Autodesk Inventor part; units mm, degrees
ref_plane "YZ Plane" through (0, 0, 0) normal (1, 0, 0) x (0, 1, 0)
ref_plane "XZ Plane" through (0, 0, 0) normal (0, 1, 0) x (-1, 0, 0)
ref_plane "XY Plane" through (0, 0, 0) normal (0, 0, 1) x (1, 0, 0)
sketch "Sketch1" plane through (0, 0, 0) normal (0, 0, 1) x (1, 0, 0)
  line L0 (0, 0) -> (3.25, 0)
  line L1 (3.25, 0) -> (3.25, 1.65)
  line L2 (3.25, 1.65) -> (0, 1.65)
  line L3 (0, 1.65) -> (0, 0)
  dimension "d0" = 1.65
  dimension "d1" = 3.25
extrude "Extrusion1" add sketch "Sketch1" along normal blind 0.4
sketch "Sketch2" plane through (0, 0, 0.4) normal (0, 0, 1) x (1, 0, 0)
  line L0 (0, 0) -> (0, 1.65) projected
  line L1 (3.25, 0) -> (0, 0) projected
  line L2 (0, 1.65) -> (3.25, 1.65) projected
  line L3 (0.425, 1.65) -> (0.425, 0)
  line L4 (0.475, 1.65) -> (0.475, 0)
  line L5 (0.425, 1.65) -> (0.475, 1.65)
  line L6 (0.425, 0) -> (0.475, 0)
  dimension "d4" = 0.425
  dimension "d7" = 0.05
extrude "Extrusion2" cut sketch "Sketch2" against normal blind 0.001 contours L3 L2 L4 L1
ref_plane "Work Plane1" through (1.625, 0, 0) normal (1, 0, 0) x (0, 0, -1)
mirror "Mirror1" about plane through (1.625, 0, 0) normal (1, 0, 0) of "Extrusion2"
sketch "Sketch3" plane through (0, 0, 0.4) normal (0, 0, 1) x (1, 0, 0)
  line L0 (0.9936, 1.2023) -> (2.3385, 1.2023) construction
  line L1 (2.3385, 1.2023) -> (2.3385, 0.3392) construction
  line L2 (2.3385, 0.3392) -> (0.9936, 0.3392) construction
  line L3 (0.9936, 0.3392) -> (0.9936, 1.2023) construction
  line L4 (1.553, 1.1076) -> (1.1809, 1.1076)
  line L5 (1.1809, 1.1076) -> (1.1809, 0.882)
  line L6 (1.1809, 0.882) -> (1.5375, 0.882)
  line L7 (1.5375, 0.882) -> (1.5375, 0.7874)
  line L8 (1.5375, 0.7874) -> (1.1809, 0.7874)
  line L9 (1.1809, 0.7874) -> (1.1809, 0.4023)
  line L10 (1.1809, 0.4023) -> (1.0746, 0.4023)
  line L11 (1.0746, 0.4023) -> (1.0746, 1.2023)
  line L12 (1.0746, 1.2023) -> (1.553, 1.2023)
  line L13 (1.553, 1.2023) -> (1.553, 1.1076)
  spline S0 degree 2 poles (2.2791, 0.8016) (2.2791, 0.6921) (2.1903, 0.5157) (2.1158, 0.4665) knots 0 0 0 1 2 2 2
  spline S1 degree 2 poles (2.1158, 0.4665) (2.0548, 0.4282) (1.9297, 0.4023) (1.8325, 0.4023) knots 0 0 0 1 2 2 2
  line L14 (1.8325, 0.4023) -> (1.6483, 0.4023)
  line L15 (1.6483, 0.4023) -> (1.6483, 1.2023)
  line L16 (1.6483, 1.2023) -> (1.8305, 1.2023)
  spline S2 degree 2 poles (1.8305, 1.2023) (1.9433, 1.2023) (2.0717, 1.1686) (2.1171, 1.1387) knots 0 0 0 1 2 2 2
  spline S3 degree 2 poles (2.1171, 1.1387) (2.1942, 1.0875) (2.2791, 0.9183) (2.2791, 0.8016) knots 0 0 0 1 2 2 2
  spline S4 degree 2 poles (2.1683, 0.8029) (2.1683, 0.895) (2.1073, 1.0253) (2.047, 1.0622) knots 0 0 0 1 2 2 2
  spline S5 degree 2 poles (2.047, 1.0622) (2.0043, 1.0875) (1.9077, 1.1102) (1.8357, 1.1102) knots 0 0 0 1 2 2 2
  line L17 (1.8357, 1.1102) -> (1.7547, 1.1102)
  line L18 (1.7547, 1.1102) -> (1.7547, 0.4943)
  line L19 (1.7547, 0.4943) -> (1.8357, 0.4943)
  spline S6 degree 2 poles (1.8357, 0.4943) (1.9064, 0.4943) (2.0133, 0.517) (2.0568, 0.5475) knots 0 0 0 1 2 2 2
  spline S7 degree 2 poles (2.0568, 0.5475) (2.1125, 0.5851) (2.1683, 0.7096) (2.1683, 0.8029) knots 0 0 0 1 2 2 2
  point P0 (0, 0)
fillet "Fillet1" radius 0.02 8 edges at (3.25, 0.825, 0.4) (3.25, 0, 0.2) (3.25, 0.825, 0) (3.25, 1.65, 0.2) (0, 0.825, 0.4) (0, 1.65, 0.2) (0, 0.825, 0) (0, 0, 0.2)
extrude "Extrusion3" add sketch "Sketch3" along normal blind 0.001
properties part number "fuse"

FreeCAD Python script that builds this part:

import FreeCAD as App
import Part
import Sketcher

V = App.Vector
Q = App.Units.Quantity


def edges_at(feature, points):
    """Names of the edges that pass closest to the given points."""
    edges = feature.Shape.Edges
    near = lambda p: min(range(len(edges)), key=lambda i: edges[i].distToShape(Part.Vertex(*p))[0])
    return sorted({f"Edge{near(p) + 1}" for p in points})

doc = App.newDocument("Part")
body = doc.addObject("PartDesign::Body", "Body")

# Sketch on XY plane
sketch1 = body.newObject("Sketcher::SketchObject", "Sketch")
sketch1.AttachmentSupport = (doc.getObject("XY_Plane"), [""])
sketch1.MapMode = "FlatFace"
sketch1.addGeometry([
    Part.LineSegment(V(0, 1.6, 0), V(0, 0, 0)),
    Part.LineSegment(V(0, 0, 0), V(3.2, 0, 0)),
    Part.LineSegment(V(3.2, 0, 0), V(3.2, 1.6, 0)),
    Part.LineSegment(V(3.2, 1.6, 0), V(0, 1.6, 0)),
], False)
sketch1.addConstraint([
    Sketcher.Constraint("Coincident", 0, 2, 1, 1),
    Sketcher.Constraint("Coincident", 1, 2, 2, 1),
    Sketcher.Constraint("Coincident", 2, 2, 3, 1),
    Sketcher.Constraint("Coincident", 3, 2, 0, 1),
    Sketcher.Constraint("Vertical", 0),
    Sketcher.Constraint("Horizontal", 1),
    Sketcher.Constraint("Vertical", 2),
    Sketcher.Constraint("Horizontal", 3),
    Sketcher.Constraint("Coincident", 0, 2, -1, 1),
    Sketcher.Constraint("DistanceX", 1, 1, 1, 2, Q("3.25 mm")),
    Sketcher.Constraint("DistanceY", 0, 2, 0, 1, Q("1.65 mm")),
])
pad1 = body.newObject("PartDesign::Pad", "Pad")
pad1.Profile = sketch1
pad1.Length = 0.4

# Sketch on XY plane
sketch2 = body.newObject("Sketcher::SketchObject", "Sketch001")
sketch2.AttachmentSupport = (doc.getObject("XY_Plane"), [""])
sketch2.MapMode = "FlatFace"
sketch2.AttachmentOffset = App.Placement(V(0, 0, 0.4), App.Rotation())
sketch2.addGeometry([
    Part.LineSegment(V(0.42, 1.65, 0), V(0.42, 0, 0)),
    Part.LineSegment(V(0.42, 0, 0), V(0.47, 0, 0)),
    Part.LineSegment(V(0.47, 0, 0), V(0.47, 1.65, 0)),
    Part.LineSegment(V(0.47, 1.65, 0), V(0.42, 1.65, 0)),
], False)
sketch2.addConstraint([
    Sketcher.Constraint("Coincident", 0, 2, 1, 1),
    Sketcher.Constraint("Coincident", 1, 2, 2, 1),
    Sketcher.Constraint("Coincident", 2, 2, 3, 1),
    Sketcher.Constraint("Coincident", 3, 2, 0, 1),
    Sketcher.Constraint("Vertical", 0),
    Sketcher.Constraint("Horizontal", 1),
    Sketcher.Constraint("Vertical", 2),
    Sketcher.Constraint("Horizontal", 3),
    Sketcher.Constraint("PointOnObject", 0, 2, -1),
    Sketcher.Constraint("DistanceX", 1, 1, 1, 2, Q("0.05 mm")),
    Sketcher.Constraint("DistanceX", -1, 1, 0, 2, Q("0.425 mm")),
    Sketcher.Constraint("DistanceY", 0, 2, 0, 1, Q("1.65 mm")),
])
pocket1 = body.newObject("PartDesign::Pocket", "Pocket")
pocket1.Profile = sketch2
pocket1.Length = 0.001
doc.recompute()

datumplane = body.newObject("PartDesign::Plane", "DatumPlane")
datumplane.AttachmentSupport = (doc.getObject("YZ_Plane"), [""])
datumplane.MapMode = "FlatFace"
datumplane.AttachmentOffset = App.Placement(V(0, 0, 1.625), App.Rotation())
mirrored = body.newObject("PartDesign::Mirrored", "Mirrored")
mirrored.Originals = [pocket1]
mirrored.MirrorPlane = (datumplane, [""])
body.Tip = mirrored
doc.recompute()

fillet = body.newObject("PartDesign::Fillet", "Fillet")
fillet.Base = (mirrored, edges_at(mirrored, [
    (3.25, 0.825, 0.4),
    (3.25, 0, 0.2),
    (3.25, 0.825, 0),
    (3.25, 1.65, 0.2),
    (0, 0.825, 0.4),
    (0, 1.65, 0.2),
    (0, 0.825, 0),
    (0, 0, 0.2),
]))
fillet.Radius = 0.02

# Sketch on XY plane
sketch3 = body.newObject("Sketcher::SketchObject", "Sketch002")
sketch3.AttachmentSupport = (doc.getObject("XY_Plane"), [""])
sketch3.MapMode = "FlatFace"
sketch3.AttachmentOffset = App.Placement(V(0, 0, 0.4), App.Rotation())
sketch3.addGeometry([
    Part.LineSegment(V(1.1809, 1.1076, 0), V(1.553, 1.1076, 0)),  # 0
    Part.LineSegment(V(1.553, 1.1076, 0), V(1.553, 1.2023, 0)),  # 1
    Part.LineSegment(V(1.553, 1.2023, 0), V(1.0746, 1.2023, 0)),  # 2
    Part.LineSegment(V(1.0746, 1.2023, 0), V(1.0746, 0.4023, 0)),  # 3
    Part.LineSegment(V(1.0746, 0.4023, 0), V(1.1809, 0.4023, 0)),  # 4
    Part.LineSegment(V(1.1809, 0.4023, 0), V(1.1809, 0.7874, 0)),  # 5
    Part.LineSegment(V(1.1809, 0.7874, 0), V(1.5375, 0.7874, 0)),  # 6
    Part.LineSegment(V(1.5375, 0.7874, 0), V(1.5375, 0.882, 0)),  # 7
    Part.LineSegment(V(1.5375, 0.882, 0), V(1.1809, 0.882, 0)),  # 8
    Part.LineSegment(V(1.1809, 0.882, 0), V(1.1809, 1.1076, 0)),  # 9
    Part.BSplineCurve([V(2.2791, 0.8016, 0), V(2.2791, 0.6921, 0), V(2.1903, 0.5157, 0), V(2.1158, 0.4665, 0)], [3, 1, 3], [0, 1, 2], False, 2, [1, 1, 1, 1], False),  # 10
    Part.BSplineCurve([V(2.1171, 1.1387, 0), V(2.1942, 1.0875, 0), V(2.2791, 0.9183, 0), V(2.2791, 0.8016, 0)], [3, 1, 3], [0, 1, 2], False, 2, [1, 1, 1, 1], False),  # 11
    Part.BSplineCurve([V(1.8305, 1.2023, 0), V(1.9433, 1.2023, 0), V(2.0717, 1.1686, 0), V(2.1171, 1.1387, 0)], [3, 1, 3], [0, 1, 2], False, 2, [1, 1, 1, 1], False),  # 12
    Part.LineSegment(V(1.8305, 1.2023, 0), V(1.6483, 1.2023, 0)),  # 13
    Part.LineSegment(V(1.6483, 1.2023, 0), V(1.6483, 0.4023, 0)),  # 14
    Part.LineSegment(V(1.6483, 0.4023, 0), V(1.8325, 0.4023, 0)),  # 15
    Part.BSplineCurve([V(2.1158, 0.4665, 0), V(2.0548, 0.4282, 0), V(1.9297, 0.4023, 0), V(1.8325, 0.4023, 0)], [3, 1, 3], [0, 1, 2], False, 2, [1, 1, 1, 1], False),  # 16
    Part.BSplineCurve([V(2.1683, 0.8029, 0), V(2.1683, 0.895, 0), V(2.1073, 1.0253, 0), V(2.047, 1.0622, 0)], [3, 1, 3], [0, 1, 2], False, 2, [1, 1, 1, 1], False),  # 17
    Part.BSplineCurve([V(2.0568, 0.5475, 0), V(2.1125, 0.5851, 0), V(2.1683, 0.7096, 0), V(2.1683, 0.8029, 0)], [3, 1, 3], [0, 1, 2], False, 2, [1, 1, 1, 1], False),  # 18
    Part.BSplineCurve([V(1.8357, 0.4943, 0), V(1.9064, 0.4943, 0), V(2.0133, 0.517, 0), V(2.0568, 0.5475, 0)], [3, 1, 3], [0, 1, 2], False, 2, [1, 1, 1, 1], False),  # 19
    Part.LineSegment(V(1.8357, 0.4943, 0), V(1.7547, 0.4943, 0)),  # 20
    Part.LineSegment(V(1.7547, 0.4943, 0), V(1.7547, 1.1102, 0)),  # 21
    Part.LineSegment(V(1.7547, 1.1102, 0), V(1.8357, 1.1102, 0)),  # 22
    Part.BSplineCurve([V(2.047, 1.0622, 0), V(2.0043, 1.0875, 0), V(1.9077, 1.1102, 0), V(1.8357, 1.1102, 0)], [3, 1, 3], [0, 1, 2], False, 2, [1, 1, 1, 1], False),  # 23
], False)
sketch3.addConstraint([
    Sketcher.Constraint("Block", 10),
    Sketcher.Constraint("Block", 11),
    Sketcher.Constraint("Block", 12),
    Sketcher.Constraint("Block", 16),
    Sketcher.Constraint("Block", 17),
    Sketcher.Constraint("Block", 18),
    Sketcher.Constraint("Block", 19),
    Sketcher.Constraint("Block", 23),
    Sketcher.Constraint("Coincident", 0, 2, 1, 1),
    Sketcher.Constraint("Coincident", 1, 2, 2, 1),
    Sketcher.Constraint("Coincident", 2, 2, 3, 1),
    Sketcher.Constraint("Coincident", 3, 2, 4, 1),
    Sketcher.Constraint("Coincident", 4, 2, 5, 1),
    Sketcher.Constraint("Coincident", 5, 2, 6, 1),
    Sketcher.Constraint("Coincident", 6, 2, 7, 1),
    Sketcher.Constraint("Coincident", 7, 2, 8, 1),
    Sketcher.Constraint("Coincident", 8, 2, 9, 1),
    Sketcher.Constraint("Coincident", 9, 2, 0, 1),
    Sketcher.Constraint("Coincident", 12, 1, 13, 1),
    Sketcher.Constraint("Coincident", 13, 2, 14, 1),
    Sketcher.Constraint("Coincident", 14, 2, 15, 1),
    Sketcher.Constraint("Coincident", 15, 2, 16, 2),
    Sketcher.Constraint("Coincident", 19, 1, 20, 1),
    Sketcher.Constraint("Coincident", 20, 2, 21, 1),
    Sketcher.Constraint("Coincident", 21, 2, 22, 1),
    Sketcher.Constraint("Coincident", 22, 2, 23, 2),
    Sketcher.Constraint("Horizontal", 0),
    Sketcher.Constraint("Vertical", 1),
    Sketcher.Constraint("Horizontal", 2),
    Sketcher.Constraint("Vertical", 3),
    Sketcher.Constraint("Horizontal", 4),
    Sketcher.Constraint("Vertical", 5),
    Sketcher.Constraint("Horizontal", 6),
    Sketcher.Constraint("Vertical", 7),
    Sketcher.Constraint("Horizontal", 8),
    Sketcher.Constraint("Vertical", 9),
    Sketcher.Constraint("Horizontal", 13),
    Sketcher.Constraint("Vertical", 14),
    Sketcher.Constraint("Horizontal", 15),
    Sketcher.Constraint("Horizontal", 20),
    Sketcher.Constraint("Vertical", 21),
    Sketcher.Constraint("Horizontal", 22),
    Sketcher.Constraint("Horizontal", 2, 2, 13, 2),
    Sketcher.Constraint("Horizontal", 4, 2, 14, 2),
    Sketcher.Constraint("Vertical", 5, 2, 8, 2),
    Sketcher.Constraint("Equal", 1, 7),
    Sketcher.Constraint("DistanceX", 0, 1, 0, 2, Q("0.372 mm")),
    Sketcher.Constraint("DistanceX", 20, 2, 20, 1, Q("0.081 mm")),
    Sketcher.Constraint("DistanceY", 5, 1, 5, 2, Q("0.385 mm")),
    Sketcher.Constraint("DistanceX", 2, 2, 2, 1, Q("0.4784 mm")),
    Sketcher.Constraint("DistanceX", 6, 1, 6, 2, Q("0.3566 mm")),
    Sketcher.Constraint("DistanceX", 13, 2, 13, 1, Q("0.1822 mm")),
    Sketcher.Constraint("DistanceY", 1, 1, 1, 2, Q("0.0947 mm")),
    Sketcher.Constraint("DistanceX", -1, 1, 0, 2, Q("1.553 mm")),
])
pad2 = body.newObject("PartDesign::Pad", "Pad001")
pad2.Profile = sketch3
pad2.Length = 0.001

doc.recompute()
